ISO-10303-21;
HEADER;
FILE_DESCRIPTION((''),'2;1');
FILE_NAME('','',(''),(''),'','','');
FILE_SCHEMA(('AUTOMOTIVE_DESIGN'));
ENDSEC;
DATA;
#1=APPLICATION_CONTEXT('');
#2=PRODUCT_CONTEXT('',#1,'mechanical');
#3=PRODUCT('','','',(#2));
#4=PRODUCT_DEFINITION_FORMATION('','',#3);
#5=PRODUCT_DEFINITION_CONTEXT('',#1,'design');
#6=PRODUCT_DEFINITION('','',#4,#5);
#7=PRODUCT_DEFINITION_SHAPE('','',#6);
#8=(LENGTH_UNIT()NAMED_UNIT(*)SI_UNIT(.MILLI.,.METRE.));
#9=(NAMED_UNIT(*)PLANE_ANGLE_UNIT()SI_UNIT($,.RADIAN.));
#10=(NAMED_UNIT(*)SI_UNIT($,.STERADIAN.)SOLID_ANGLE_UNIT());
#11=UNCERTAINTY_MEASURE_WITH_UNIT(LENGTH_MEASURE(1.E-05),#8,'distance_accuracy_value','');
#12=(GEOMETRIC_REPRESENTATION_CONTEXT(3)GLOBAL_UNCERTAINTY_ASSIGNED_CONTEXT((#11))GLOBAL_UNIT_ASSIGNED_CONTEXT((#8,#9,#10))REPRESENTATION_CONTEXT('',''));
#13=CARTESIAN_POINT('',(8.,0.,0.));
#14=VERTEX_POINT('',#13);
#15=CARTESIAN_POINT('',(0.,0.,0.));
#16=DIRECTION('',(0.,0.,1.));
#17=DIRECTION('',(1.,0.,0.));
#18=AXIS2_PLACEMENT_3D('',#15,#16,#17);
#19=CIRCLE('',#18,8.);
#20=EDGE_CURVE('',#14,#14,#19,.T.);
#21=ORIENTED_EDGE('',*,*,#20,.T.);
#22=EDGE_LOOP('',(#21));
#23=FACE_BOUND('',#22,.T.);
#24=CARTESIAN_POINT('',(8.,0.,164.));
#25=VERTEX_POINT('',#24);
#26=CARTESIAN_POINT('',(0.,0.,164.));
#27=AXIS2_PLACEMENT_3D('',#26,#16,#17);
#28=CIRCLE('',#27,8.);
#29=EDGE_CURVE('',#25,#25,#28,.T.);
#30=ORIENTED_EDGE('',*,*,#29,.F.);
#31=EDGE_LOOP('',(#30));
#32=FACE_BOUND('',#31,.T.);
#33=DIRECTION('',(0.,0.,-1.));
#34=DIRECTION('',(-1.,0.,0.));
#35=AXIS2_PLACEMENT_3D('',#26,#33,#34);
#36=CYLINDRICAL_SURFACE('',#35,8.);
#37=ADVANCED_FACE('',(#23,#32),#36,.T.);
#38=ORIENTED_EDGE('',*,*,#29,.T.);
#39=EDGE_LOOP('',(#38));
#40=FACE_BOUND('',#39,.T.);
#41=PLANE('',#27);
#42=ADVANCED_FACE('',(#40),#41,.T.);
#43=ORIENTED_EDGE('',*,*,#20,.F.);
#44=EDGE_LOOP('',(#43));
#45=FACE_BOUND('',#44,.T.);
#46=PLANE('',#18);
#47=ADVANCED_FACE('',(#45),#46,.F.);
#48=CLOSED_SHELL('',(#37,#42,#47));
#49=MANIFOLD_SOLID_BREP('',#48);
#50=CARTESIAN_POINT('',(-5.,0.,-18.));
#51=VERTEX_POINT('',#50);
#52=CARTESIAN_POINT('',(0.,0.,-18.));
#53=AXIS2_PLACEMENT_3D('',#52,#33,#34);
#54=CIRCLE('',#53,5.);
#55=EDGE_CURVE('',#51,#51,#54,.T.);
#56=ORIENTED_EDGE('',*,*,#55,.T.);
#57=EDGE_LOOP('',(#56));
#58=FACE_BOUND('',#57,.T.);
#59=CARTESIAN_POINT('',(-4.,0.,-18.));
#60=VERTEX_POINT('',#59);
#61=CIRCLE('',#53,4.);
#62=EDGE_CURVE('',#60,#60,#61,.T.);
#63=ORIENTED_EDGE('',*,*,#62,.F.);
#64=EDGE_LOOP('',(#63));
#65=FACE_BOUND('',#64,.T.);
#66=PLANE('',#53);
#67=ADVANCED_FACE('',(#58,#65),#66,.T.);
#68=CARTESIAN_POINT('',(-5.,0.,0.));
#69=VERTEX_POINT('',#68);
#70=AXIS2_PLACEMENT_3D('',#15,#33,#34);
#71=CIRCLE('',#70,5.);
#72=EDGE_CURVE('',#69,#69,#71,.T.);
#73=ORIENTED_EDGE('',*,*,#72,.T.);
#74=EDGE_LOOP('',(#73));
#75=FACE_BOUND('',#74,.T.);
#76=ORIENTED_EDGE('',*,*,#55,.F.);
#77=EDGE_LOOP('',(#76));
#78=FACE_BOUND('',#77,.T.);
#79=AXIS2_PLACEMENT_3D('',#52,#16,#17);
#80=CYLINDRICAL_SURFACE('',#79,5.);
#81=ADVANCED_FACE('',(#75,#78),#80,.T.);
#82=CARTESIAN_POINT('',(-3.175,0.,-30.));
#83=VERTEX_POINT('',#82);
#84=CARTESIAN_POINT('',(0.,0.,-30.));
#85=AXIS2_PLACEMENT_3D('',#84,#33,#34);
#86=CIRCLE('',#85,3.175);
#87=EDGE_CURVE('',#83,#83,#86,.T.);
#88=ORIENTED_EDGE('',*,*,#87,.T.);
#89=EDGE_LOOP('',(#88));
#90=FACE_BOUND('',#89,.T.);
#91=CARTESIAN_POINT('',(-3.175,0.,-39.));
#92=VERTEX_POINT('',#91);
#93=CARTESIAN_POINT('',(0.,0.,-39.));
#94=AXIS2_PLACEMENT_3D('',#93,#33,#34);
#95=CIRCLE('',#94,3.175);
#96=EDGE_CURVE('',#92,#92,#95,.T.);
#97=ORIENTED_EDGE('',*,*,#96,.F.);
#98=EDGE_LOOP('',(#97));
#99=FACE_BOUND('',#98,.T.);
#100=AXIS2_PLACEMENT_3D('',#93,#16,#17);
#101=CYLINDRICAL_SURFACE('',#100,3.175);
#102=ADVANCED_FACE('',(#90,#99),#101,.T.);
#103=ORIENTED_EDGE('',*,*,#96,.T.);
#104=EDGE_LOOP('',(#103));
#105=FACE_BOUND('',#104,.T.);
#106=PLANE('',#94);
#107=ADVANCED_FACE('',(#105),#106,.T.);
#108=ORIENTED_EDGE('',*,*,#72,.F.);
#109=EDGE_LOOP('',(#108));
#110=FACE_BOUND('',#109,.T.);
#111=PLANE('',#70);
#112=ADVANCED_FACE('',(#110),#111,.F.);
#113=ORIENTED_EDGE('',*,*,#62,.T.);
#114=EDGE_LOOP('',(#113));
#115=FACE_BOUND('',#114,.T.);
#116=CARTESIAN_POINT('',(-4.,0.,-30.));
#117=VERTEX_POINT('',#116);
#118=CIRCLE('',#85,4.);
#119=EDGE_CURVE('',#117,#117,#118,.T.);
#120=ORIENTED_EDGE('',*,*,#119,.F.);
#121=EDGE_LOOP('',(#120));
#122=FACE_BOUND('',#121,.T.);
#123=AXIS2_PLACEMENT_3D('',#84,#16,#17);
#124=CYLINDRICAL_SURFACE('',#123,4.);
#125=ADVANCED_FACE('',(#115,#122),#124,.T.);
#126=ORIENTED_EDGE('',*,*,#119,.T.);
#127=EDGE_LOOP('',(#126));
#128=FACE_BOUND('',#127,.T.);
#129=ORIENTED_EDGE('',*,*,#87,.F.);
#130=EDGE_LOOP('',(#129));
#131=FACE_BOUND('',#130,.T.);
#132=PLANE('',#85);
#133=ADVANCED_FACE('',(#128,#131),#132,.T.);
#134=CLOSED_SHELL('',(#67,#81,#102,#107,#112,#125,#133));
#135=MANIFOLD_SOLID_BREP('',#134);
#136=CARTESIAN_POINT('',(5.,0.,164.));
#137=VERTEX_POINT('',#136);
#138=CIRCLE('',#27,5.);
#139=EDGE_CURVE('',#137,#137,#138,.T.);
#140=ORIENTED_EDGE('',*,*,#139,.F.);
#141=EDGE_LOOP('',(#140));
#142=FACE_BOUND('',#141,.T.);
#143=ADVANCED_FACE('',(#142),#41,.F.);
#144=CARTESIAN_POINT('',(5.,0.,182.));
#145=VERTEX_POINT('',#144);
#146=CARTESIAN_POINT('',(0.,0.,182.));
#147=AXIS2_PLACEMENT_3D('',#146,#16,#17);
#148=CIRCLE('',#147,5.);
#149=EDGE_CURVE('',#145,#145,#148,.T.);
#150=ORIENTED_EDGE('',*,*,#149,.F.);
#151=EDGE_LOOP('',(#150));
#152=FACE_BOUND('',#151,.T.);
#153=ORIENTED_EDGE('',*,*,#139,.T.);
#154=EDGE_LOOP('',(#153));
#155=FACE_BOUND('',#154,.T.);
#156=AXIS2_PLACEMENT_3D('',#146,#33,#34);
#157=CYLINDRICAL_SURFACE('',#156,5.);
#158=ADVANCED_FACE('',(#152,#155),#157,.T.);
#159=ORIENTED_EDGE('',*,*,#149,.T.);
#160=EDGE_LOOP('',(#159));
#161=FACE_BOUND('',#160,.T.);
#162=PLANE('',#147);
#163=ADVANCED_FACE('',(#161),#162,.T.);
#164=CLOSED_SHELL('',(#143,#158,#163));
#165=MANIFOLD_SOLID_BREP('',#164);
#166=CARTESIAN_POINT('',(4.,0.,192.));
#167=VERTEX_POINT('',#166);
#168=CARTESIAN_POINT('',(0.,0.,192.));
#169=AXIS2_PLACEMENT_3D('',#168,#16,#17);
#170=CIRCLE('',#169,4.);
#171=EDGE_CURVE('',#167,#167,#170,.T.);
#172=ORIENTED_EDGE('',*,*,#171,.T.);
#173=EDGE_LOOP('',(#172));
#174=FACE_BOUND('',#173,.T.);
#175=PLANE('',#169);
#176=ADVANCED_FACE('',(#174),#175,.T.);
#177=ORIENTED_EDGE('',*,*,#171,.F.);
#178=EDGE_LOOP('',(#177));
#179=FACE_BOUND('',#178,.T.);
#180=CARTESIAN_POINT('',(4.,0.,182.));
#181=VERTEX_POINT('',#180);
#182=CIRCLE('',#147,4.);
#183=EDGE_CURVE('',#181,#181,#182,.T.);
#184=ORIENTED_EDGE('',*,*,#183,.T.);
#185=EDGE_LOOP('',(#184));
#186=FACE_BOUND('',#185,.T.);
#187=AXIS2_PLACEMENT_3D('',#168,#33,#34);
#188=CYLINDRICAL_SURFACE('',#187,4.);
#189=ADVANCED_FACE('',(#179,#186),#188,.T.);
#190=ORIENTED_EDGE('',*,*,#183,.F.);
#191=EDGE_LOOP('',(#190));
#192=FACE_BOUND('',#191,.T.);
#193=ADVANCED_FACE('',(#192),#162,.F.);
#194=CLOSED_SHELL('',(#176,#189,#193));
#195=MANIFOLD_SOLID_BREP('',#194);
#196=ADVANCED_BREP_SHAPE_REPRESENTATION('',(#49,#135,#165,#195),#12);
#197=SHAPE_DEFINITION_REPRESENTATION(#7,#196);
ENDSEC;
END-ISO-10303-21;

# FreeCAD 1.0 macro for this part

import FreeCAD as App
import Part
import Sketcher

V = App.Vector

doc = App.newDocument("Part")
body = doc.addObject("PartDesign::Body", "Body")

sketch1 = doc.addObject("Sketcher::SketchObject", "Sketch")
body.addObject(sketch1)
sketch1.AttachmentSupport = (doc.XY_Plane, [""])
sketch1.MapMode = "FlatFace"
sketch1.addGeometry(Part.Circle(V(0, 0, 0), V(0, 0, 1), 8), False)
sketch1.addConstraint(Sketcher.Constraint("Coincident", 0, 3, -1, 1))
sketch1.addConstraint(Sketcher.Constraint("Diameter", 0, 16.0))
pad1 = doc.addObject("PartDesign::Pad", "Pad")
body.addObject(pad1)
pad1.Profile = sketch1
pad1.Length = 164
body2 = doc.addObject("PartDesign::Body", "Body001")

sketch2 = doc.addObject("Sketcher::SketchObject", "Sketch001")
body2.addObject(sketch2)
sketch2.AttachmentSupport = (doc.getObject("XY_Plane001"), [""])
sketch2.MapMode = "FlatFace"
sketch2.AttachmentOffset = App.Placement(V(0, 0, 164), App.Rotation())
sketch2.addGeometry(Part.Circle(V(0, 0, 0), V(0, 0, 1), 5), False)
sketch2.addConstraint(Sketcher.Constraint("Coincident", 0, 3, -1, 1))
sketch2.addConstraint(Sketcher.Constraint("Diameter", 0, 10.0))
pad2 = doc.addObject("PartDesign::Pad", "Pad001")
body2.addObject(pad2)
pad2.Profile = sketch2
pad2.Length = 18
body3 = doc.addObject("PartDesign::Body", "Body002")

sketch3 = doc.addObject("Sketcher::SketchObject", "Sketch002")
body3.addObject(sketch3)
sketch3.AttachmentSupport = (doc.getObject("XY_Plane002"), [""])
sketch3.MapMode = "FlatFace"
sketch3.addGeometry(Part.Circle(V(0, 0, 0), V(0, 0, 1), 5), False)
sketch3.addConstraint(Sketcher.Constraint("Coincident", 0, 3, -1, 1))
sketch3.addConstraint(Sketcher.Constraint("Diameter", 0, 10.0))
pad3 = doc.addObject("PartDesign::Pad", "Pad002")
body3.addObject(pad3)
pad3.Profile = sketch3
pad3.Length = 18
pad3.Reversed = True

sketch4 = doc.addObject("Sketcher::SketchObject", "Sketch003")
body3.addObject(sketch4)
sketch4.AttachmentSupport = (doc.getObject("XY_Plane002"), [""])
sketch4.MapMode = "FlatFace"
sketch4.AttachmentOffset = App.Placement(V(0, 0, -18), App.Rotation())
sketch4.addGeometry(Part.Circle(V(0, 0, 0), V(0, 0, 1), 4), False)
sketch4.addConstraint(Sketcher.Constraint("Coincident", 0, 3, -1, 1))
sketch4.addConstraint(Sketcher.Constraint("Diameter", 0, 8.0))
pad4 = doc.addObject("PartDesign::Pad", "Pad003")
body3.addObject(pad4)
pad4.Profile = sketch4
pad4.Length = 12
pad4.Reversed = True

sketch5 = doc.addObject("Sketcher::SketchObject", "Sketch004")
body3.addObject(sketch5)
sketch5.AttachmentSupport = (doc.getObject("XY_Plane002"), [""])
sketch5.MapMode = "FlatFace"
sketch5.AttachmentOffset = App.Placement(V(0, 0, -30), App.Rotation())
sketch5.addGeometry(Part.Circle(V(0, 0, 0), V(0, 0, 1), 3.2), False)
sketch5.addConstraint(Sketcher.Constraint("Coincident", 0, 3, -1, 1))
sketch5.addConstraint(Sketcher.Constraint("Diameter", 0, 6.35))
pad5 = doc.addObject("PartDesign::Pad", "Pad004")
body3.addObject(pad5)
pad5.Profile = sketch5
pad5.Length = 9
pad5.Reversed = True
body4 = doc.addObject("PartDesign::Body", "Body003")

sketch6 = doc.addObject("Sketcher::SketchObject", "Sketch005")
body4.addObject(sketch6)
sketch6.AttachmentSupport = (doc.getObject("XY_Plane003"), [""])
sketch6.MapMode = "FlatFace"
sketch6.AttachmentOffset = App.Placement(V(0, 0, 182), App.Rotation())
sketch6.addGeometry(Part.Circle(V(0, 0, 0), V(0, 0, 1), 4), False)
sketch6.addConstraint(Sketcher.Constraint("Coincident", 0, 3, -1, 1))
sketch6.addConstraint(Sketcher.Constraint("Diameter", 0, 8.0))
pad6 = doc.addObject("PartDesign::Pad", "Pad005")
body4.addObject(pad6)
pad6.Profile = sketch6
pad6.Length = 10

doc.recompute()
